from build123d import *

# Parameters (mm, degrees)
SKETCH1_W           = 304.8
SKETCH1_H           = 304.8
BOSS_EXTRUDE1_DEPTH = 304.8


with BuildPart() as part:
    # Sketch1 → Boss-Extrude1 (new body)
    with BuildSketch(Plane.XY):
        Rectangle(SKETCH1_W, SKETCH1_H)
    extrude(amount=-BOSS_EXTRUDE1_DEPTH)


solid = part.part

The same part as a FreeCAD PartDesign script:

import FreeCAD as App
import Part
import Sketcher

V = App.Vector
Q = App.Units.Quantity


def add_polygon(sketch, points):
    """Adds a closed chain of lines whose ends are joined by coincident constraints."""
    first, n = sketch.GeometryCount, len(points)
    for a, b in zip(points, points[1:] + points[:1]):
        sketch.addGeometry(Part.LineSegment(App.Vector(*a, 0), App.Vector(*b, 0)), False)
    for i in range(n):
        sketch.addConstraint(Sketcher.Constraint("Coincident", first + i, 2, first + (i + 1) % n, 1))

doc = App.newDocument("Part")
body = doc.addObject("PartDesign::Body", "Body")

sketch1 = body.newObject("Sketcher::SketchObject", "Sketch")
sketch1.AttachmentSupport = (doc.getObject("XY_Plane"), [""])
sketch1.MapMode = "FlatFace"
add_polygon(sketch1, [(-152, 152), (-152, -152), (152, -152), (152, 152)])
sketch1.addConstraint(Sketcher.Constraint("Vertical", 0))
sketch1.addConstraint(Sketcher.Constraint("Horizontal", 1))
sketch1.addConstraint(Sketcher.Constraint("Vertical", 2))
sketch1.addConstraint(Sketcher.Constraint("Horizontal", 3))
sketch1.addConstraint(Sketcher.Constraint("Symmetric", 0, 2, 2, 2, -1, 1))
sketch1.addConstraint(Sketcher.Constraint("Equal", 3, 0))
sketch1.addConstraint(Sketcher.Constraint("DistanceX", 1, 1, 1, 2, Q("12 in")))
pad1 = body.newObject("PartDesign::Pad", "Pad")
pad1.Profile = sketch1
pad1.Length = Q("12 in")
pad1.Reversed = True

doc.recompute()
